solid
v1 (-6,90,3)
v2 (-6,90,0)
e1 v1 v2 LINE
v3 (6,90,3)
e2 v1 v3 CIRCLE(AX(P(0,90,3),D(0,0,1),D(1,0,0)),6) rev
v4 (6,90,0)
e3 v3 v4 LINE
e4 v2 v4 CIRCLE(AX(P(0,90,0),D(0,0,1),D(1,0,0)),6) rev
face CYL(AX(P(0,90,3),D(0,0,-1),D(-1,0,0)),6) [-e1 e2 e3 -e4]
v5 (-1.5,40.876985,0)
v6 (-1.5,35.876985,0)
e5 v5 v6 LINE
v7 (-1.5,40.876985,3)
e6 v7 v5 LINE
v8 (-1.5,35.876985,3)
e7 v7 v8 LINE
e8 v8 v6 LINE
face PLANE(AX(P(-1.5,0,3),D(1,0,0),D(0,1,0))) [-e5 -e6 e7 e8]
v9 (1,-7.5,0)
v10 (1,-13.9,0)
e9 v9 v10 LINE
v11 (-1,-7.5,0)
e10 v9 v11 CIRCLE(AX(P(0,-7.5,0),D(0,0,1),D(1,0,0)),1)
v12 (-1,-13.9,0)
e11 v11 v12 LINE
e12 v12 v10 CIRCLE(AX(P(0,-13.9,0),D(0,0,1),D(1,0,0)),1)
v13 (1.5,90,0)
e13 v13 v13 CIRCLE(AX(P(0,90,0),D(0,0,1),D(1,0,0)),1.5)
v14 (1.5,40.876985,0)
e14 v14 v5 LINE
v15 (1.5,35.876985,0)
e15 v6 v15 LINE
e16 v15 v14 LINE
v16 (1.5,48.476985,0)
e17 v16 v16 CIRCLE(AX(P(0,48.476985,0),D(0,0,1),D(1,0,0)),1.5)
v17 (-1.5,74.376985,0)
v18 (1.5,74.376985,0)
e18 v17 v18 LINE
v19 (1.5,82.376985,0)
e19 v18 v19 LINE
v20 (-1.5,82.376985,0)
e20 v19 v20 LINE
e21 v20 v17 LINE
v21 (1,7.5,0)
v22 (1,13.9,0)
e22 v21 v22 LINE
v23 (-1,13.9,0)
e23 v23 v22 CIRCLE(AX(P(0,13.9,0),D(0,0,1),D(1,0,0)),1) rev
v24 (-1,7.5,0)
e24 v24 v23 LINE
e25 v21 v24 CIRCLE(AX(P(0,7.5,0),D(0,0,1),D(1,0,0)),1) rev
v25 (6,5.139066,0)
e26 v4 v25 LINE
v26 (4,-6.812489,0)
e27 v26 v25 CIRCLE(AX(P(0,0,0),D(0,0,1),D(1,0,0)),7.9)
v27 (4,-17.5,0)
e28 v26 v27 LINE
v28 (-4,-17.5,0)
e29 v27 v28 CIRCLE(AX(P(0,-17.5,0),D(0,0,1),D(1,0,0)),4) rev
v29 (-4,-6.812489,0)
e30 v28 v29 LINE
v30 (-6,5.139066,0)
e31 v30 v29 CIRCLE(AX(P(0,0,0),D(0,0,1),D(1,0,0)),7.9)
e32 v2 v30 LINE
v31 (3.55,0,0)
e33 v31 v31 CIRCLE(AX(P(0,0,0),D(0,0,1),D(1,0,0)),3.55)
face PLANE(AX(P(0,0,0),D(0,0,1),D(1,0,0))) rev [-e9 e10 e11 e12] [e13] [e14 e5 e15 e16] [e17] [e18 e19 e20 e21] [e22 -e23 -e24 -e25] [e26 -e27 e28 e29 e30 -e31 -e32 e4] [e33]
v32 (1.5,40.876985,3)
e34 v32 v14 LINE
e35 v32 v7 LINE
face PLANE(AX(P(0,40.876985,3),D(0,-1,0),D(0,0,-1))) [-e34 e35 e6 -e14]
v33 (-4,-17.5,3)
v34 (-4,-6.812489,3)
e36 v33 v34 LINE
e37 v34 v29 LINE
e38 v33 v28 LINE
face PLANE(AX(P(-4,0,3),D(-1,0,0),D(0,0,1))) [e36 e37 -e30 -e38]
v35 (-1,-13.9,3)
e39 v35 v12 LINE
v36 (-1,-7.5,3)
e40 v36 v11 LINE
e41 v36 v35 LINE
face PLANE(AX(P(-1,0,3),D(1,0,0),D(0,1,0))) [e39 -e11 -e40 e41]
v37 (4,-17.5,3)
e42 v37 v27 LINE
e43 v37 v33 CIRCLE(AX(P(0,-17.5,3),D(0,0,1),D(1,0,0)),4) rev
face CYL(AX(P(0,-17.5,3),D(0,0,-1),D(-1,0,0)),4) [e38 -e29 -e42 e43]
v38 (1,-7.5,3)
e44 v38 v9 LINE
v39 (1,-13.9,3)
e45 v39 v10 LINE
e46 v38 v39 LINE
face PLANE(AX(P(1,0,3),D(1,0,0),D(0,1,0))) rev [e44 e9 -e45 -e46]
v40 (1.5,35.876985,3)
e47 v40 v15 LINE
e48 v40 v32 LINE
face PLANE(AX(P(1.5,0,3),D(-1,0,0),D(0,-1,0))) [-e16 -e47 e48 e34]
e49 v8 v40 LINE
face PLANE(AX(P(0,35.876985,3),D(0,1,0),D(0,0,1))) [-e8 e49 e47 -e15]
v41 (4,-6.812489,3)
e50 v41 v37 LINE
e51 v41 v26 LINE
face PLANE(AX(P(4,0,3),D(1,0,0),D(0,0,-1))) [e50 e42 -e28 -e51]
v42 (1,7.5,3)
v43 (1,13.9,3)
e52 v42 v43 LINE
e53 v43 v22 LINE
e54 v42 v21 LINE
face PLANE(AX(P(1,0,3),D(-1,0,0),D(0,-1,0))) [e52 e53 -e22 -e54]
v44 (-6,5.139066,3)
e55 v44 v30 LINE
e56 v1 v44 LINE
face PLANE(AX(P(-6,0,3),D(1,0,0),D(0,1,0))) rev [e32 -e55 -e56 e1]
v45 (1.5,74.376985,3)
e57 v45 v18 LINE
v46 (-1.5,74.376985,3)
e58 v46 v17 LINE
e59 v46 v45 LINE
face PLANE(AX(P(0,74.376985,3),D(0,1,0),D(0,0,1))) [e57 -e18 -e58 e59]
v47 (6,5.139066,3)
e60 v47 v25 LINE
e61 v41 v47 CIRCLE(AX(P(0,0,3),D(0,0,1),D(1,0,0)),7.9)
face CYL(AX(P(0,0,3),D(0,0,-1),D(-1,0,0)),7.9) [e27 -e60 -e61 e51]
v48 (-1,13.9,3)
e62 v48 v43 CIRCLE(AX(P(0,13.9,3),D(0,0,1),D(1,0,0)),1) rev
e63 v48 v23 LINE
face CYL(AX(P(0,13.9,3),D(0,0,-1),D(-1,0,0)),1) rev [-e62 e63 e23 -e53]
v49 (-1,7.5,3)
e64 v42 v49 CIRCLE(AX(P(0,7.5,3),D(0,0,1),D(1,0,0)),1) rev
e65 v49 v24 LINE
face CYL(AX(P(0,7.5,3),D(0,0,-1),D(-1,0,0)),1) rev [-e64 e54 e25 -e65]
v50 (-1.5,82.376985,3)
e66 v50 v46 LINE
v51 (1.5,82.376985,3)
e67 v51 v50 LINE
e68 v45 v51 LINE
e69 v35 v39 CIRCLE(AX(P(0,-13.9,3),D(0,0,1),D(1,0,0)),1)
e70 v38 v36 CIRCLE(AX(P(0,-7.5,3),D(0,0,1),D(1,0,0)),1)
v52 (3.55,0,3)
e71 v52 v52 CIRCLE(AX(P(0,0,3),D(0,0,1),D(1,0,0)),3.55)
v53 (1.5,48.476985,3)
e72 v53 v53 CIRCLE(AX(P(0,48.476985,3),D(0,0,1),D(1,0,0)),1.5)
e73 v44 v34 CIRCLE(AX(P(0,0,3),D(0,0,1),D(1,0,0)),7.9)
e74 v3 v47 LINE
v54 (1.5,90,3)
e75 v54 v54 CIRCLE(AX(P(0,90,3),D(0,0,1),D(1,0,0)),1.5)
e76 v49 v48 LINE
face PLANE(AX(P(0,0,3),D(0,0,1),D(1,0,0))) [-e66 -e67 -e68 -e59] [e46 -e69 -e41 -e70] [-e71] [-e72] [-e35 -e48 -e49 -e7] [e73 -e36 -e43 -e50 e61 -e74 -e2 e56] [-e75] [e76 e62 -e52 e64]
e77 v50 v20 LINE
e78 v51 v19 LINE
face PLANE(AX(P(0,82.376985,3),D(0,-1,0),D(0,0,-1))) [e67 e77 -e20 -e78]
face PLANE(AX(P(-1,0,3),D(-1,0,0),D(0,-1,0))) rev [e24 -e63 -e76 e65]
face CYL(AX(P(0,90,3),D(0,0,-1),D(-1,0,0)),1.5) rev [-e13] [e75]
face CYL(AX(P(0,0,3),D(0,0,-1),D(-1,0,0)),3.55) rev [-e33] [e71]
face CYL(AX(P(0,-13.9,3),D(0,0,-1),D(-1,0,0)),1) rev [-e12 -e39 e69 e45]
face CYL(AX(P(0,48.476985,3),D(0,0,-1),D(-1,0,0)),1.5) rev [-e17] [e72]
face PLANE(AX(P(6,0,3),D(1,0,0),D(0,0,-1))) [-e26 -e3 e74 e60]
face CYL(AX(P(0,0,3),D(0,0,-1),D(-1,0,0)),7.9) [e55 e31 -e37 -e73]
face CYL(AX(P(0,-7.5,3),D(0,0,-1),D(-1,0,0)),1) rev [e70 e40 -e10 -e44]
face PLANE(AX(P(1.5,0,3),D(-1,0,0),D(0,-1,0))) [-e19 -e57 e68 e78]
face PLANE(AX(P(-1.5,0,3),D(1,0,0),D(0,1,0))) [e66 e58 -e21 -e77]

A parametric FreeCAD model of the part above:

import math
import FreeCAD as App
import Part
import Sketcher

doc = App.newDocument("Part")
body = doc.addObject("PartDesign::Body", "Body")

# Sketch on XY plane
sketch1 = doc.addObject("Sketcher::SketchObject", "Sketch")
body.addObject(sketch1)
sketch1.AttachmentSupport = (doc.XY_Plane, [""])
sketch1.MapMode = "FlatFace"
sketch1.addGeometry([
    Part.LineSegment(App.Vector(-6, 90, 0), App.Vector(-6, 5.1, 0)),  # 0
    Part.ArcOfCircle(Part.Circle(App.Vector(0, 0, 0), App.Vector(0, 0, 1), 7.9), math.radians(139), math.radians(240)),  # 1
    Part.LineSegment(App.Vector(-4, -6.8, 0), App.Vector(-4, -17.5, 0)),  # 2
    Part.ArcOfCircle(Part.Circle(App.Vector(0, -17.5, 0), App.Vector(0, 0, 1), 4), math.radians(180), math.radians(360)),  # 3
    Part.LineSegment(App.Vector(4, -17.5, 0), App.Vector(4, -6.8, 0)),  # 4
    Part.ArcOfCircle(Part.Circle(App.Vector(0, 0, 0), App.Vector(0, 0, 1), 7.9), math.radians(-60), math.radians(41)),  # 5
    Part.LineSegment(App.Vector(6, 5.1, 0), App.Vector(6, 90, 0)),  # 6
    Part.ArcOfCircle(Part.Circle(App.Vector(0, 90, 0), App.Vector(0, 0, 1), 6), math.radians(0), math.radians(180)),  # 7
    Part.ArcOfCircle(Part.Circle(App.Vector(0, -7.5, 0), App.Vector(0, 0, 1), 1), math.radians(0), math.radians(180)),  # 8
    Part.LineSegment(App.Vector(1, -7.5, 0), App.Vector(1, -13.9, 0)),  # 9
    Part.ArcOfCircle(Part.Circle(App.Vector(0, -13.9, 0), App.Vector(0, 0, 1), 1), math.radians(180), math.radians(360)),  # 10
    Part.LineSegment(App.Vector(-1, -13.9, 0), App.Vector(-1, -7.5, 0)),  # 11
    Part.Circle(App.Vector(0, 0, 0), App.Vector(0, 0, 1), 3.5),  # 12
    Part.LineSegment(App.Vector(1, 13.9, 0), App.Vector(1, 7.5, 0)),  # 13
    Part.ArcOfCircle(Part.Circle(App.Vector(0, 7.5, 0), App.Vector(0, 0, 1), 1), math.radians(180), math.radians(360)),  # 14
    Part.LineSegment(App.Vector(-1, 7.5, 0), App.Vector(-1, 13.9, 0)),  # 15
    Part.ArcOfCircle(Part.Circle(App.Vector(0, 13.9, 0), App.Vector(0, 0, 1), 1), math.radians(0), math.radians(180)),  # 16
    Part.LineSegment(App.Vector(1.5, 35.9, 0), App.Vector(-1.5, 35.9, 0)),  # 17
    Part.LineSegment(App.Vector(-1.5, 35.9, 0), App.Vector(-1.5, 40.9, 0)),  # 18
    Part.LineSegment(App.Vector(-1.5, 40.9, 0), App.Vector(1.5, 40.9, 0)),  # 19
    Part.LineSegment(App.Vector(1.5, 40.9, 0), App.Vector(1.5, 35.9, 0)),  # 20
    Part.Circle(App.Vector(0, 48.5, 0), App.Vector(0, 0, 1), 1.5),  # 21
    Part.LineSegment(App.Vector(1.5, 74.4, 0), App.Vector(-1.5, 74.4, 0)),  # 22
    Part.LineSegment(App.Vector(-1.5, 74.4, 0), App.Vector(-1.5, 82.4, 0)),  # 23
    Part.LineSegment(App.Vector(-1.5, 82.4, 0), App.Vector(1.5, 82.4, 0)),  # 24
    Part.LineSegment(App.Vector(1.5, 82.4, 0), App.Vector(1.5, 74.4, 0)),  # 25
    Part.Circle(App.Vector(0, 90, 0), App.Vector(0, 0, 1), 1.5),  # 26
], False)
sketch1.addConstraint([
    Sketcher.Constraint("Coincident", 0, 2, 1, 1),
    Sketcher.Constraint("Coincident", 1, 2, 2, 1),
    Sketcher.Constraint("Tangent", 2, 2, 3, 1),
    Sketcher.Constraint("Tangent", 3, 2, 4, 1),
    Sketcher.Constraint("Coincident", 4, 2, 5, 1),
    Sketcher.Constraint("Coincident", 5, 2, 6, 1),
    Sketcher.Constraint("Tangent", 6, 2, 7, 1),
    Sketcher.Constraint("Tangent", 7, 2, 0, 1),
    Sketcher.Constraint("Tangent", 8, 1, 9, 1),
    Sketcher.Constraint("Tangent", 9, 2, 10, 2),
    Sketcher.Constraint("Tangent", 10, 1, 11, 1),
    Sketcher.Constraint("Tangent", 11, 2, 8, 2),
    Sketcher.Constraint("Tangent", 13, 2, 14, 2),
    Sketcher.Constraint("Tangent", 14, 1, 15, 1),
    Sketcher.Constraint("Tangent", 15, 2, 16, 2),
    Sketcher.Constraint("Tangent", 16, 1, 13, 1),
    Sketcher.Constraint("Coincident", 17, 2, 18, 1),
    Sketcher.Constraint("Coincident", 18, 2, 19, 1),
    Sketcher.Constraint("Coincident", 19, 2, 20, 1),
    Sketcher.Constraint("Coincident", 20, 2, 17, 1),
    Sketcher.Constraint("Coincident", 22, 2, 23, 1),
    Sketcher.Constraint("Coincident", 23, 2, 24, 1),
    Sketcher.Constraint("Coincident", 24, 2, 25, 1),
    Sketcher.Constraint("Coincident", 25, 2, 22, 1),
    Sketcher.Constraint("Vertical", 0),
    Sketcher.Constraint("Vertical", 2),
    Sketcher.Constraint("Vertical", 4),
    Sketcher.Constraint("Vertical", 6),
    Sketcher.Constraint("Vertical", 9),
    Sketcher.Constraint("Vertical", 11),
    Sketcher.Constraint("Vertical", 13),
    Sketcher.Constraint("Vertical", 15),
    Sketcher.Constraint("Horizontal", 17),
    Sketcher.Constraint("Vertical", 18),
    Sketcher.Constraint("Horizontal", 19),
    Sketcher.Constraint("Vertical", 20),
    Sketcher.Constraint("Horizontal", 22),
    Sketcher.Constraint("Vertical", 23),
    Sketcher.Constraint("Horizontal", 24),
    Sketcher.Constraint("Vertical", 25),
    Sketcher.Constraint("Coincident", 1, 3, -1, 1),
    Sketcher.Constraint("Coincident", 5, 3, -1, 1),
    Sketcher.Constraint("Coincident", 12, 3, -1, 1),
    Sketcher.Constraint("Coincident", 26, 3, 7, 3),
    Sketcher.Constraint("Equal", 1, 5),
    Sketcher.Constraint("Equal", 10, 14),
    Sketcher.Constraint("Equal", 21, 26),
    Sketcher.Constraint("Symmetric", 8, 3, 14, 3, -1, 1),
    Sketcher.Constraint("Symmetric", 10, 3, 16, 3, -1),
    Sketcher.Constraint("PointOnObject", 3, 3, -2),
    Sketcher.Constraint("PointOnObject", 7, 3, -2),
    Sketcher.Constraint("PointOnObject", 21, 3, -2),
    Sketcher.Constraint("Vertical", 18, 2, 22, 2),
    Sketcher.Constraint("Vertical", 20, 2, 24, 2),
    Sketcher.Constraint("Diameter", 21, 3.0),
    Sketcher.Constraint("Radius", 3, 4.0),
    Sketcher.Constraint("Radius", 7, 6.0),
    Sketcher.Constraint("Radius", 8, 1.0),
    Sketcher.Constraint("Diameter", 12, 7.1),
    Sketcher.Constraint("Radius", 1, 7.9),
    Sketcher.Constraint("DistanceX", 17, 2, 17, 1, 3.0),
    Sketcher.Constraint("DistanceY", 18, 1, 18, 2, 5.0),
    Sketcher.Constraint("DistanceY", 23, 1, 23, 2, 8.0),
    Sketcher.Constraint("DistanceY", 9, 2, 9, 1, 6.4),
    Sketcher.Constraint("DistanceY", -1, 1, 7, 3, 90.0),
    Sketcher.Constraint("DistanceY", 3, 3, 8, 3, 10.0),
    Sketcher.Constraint("DistanceY", 8, 3, 14, 3, 15.0),
    Sketcher.Constraint("DistanceX", 17, 2, -1, 1, 1.5),
    Sketcher.Constraint("DistanceY", 17, 2, 21, 3, 12.6),
    Sketcher.Constraint("DistanceY", 21, 3, 22, 2, 25.9),
    Sketcher.Constraint("DistanceY", -1, 1, 21, 3, 48.476985),
])
pad1 = doc.addObject("PartDesign::Pad", "Pad")
body.addObject(pad1)
pad1.Profile = sketch1
pad1.Length = 3

doc.recompute()
